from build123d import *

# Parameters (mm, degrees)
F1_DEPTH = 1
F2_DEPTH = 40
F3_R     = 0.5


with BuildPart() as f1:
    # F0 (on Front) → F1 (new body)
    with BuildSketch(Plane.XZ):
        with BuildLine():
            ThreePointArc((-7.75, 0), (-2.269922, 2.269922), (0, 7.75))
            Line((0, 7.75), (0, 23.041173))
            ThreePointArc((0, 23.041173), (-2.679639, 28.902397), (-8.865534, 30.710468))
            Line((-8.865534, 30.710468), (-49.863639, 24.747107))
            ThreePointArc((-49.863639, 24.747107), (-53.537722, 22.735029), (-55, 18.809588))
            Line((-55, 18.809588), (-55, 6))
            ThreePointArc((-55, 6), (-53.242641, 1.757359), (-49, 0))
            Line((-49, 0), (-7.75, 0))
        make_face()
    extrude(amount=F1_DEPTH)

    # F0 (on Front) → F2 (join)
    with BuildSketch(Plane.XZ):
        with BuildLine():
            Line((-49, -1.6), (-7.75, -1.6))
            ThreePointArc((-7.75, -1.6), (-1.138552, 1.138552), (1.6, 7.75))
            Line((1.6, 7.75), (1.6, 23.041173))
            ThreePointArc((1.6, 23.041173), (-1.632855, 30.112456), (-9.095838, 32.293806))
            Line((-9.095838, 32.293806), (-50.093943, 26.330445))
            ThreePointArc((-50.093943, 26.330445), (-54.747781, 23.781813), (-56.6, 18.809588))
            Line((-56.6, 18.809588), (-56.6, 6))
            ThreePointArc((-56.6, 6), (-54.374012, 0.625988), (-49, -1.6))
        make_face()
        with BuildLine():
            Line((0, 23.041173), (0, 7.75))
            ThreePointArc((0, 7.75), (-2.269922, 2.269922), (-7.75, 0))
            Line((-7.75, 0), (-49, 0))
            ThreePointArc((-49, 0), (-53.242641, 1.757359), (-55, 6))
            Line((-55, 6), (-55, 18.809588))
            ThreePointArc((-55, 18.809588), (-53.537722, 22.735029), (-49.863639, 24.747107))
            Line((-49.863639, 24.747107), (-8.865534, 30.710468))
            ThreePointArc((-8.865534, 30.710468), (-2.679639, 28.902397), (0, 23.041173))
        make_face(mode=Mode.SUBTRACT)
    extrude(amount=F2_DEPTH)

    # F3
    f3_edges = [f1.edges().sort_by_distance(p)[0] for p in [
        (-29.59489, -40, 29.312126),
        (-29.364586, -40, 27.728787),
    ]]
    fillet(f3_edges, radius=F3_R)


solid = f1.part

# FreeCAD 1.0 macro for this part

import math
import FreeCAD as App
import Part
import Sketcher
from FreeCAD import Vector


def edges_at(feature, points):
    """Names of the edges that pass closest to the given points."""
    edges = feature.Shape.Edges
    near = lambda p: min(range(len(edges)), key=lambda i: edges[i].distToShape(Part.Vertex(*p))[0])
    return sorted({f"Edge{near(p) + 1}" for p in points})

doc = App.newDocument("Part")
body = doc.addObject("PartDesign::Body", "Body")

# Sketch on XZ plane
sketch1 = body.newObject("Sketcher::SketchObject", "Sketch")
sketch1.AttachmentSupport = (doc.getObject("XZ_Plane"), [""])
sketch1.MapMode = "FlatFace"
sketch1.addGeometry([
    Part.ArcOfCircle(Part.Circle(Vector(-8, 8, 0), Vector(0, 0, 1), 8), math.radians(-90), math.radians(0)),  # 0
    Part.LineSegment(Vector(0, 8, 0), Vector(0, 23, 0)),  # 1
    Part.ArcOfCircle(Part.Circle(Vector(-8, 23, 0), Vector(0, 0, 1), 8), math.radians(0), math.radians(98)),  # 2
    Part.LineSegment(Vector(-9, 31, 0), Vector(-50, 25, 0)),  # 3
    Part.ArcOfCircle(Part.Circle(Vector(-49, 19, 0), Vector(0, 0, 1), 6), math.radians(98), math.radians(180)),  # 4
    Part.LineSegment(Vector(-55, 19, 0), Vector(-55, 6, 0)),  # 5
    Part.ArcOfCircle(Part.Circle(Vector(-49, 6, 0), Vector(0, 0, 1), 6), math.radians(180), math.radians(270)),  # 6
    Part.LineSegment(Vector(-49, 0, 0), Vector(-8, 0, 0)),  # 7
], False)
sketch1.addConstraint([
    Sketcher.Constraint("Tangent", 0, 2, 1, 1),
    Sketcher.Constraint("Tangent", 1, 2, 2, 1),
    Sketcher.Constraint("Tangent", 2, 2, 3, 1),
    Sketcher.Constraint("Tangent", 3, 2, 4, 1),
    Sketcher.Constraint("Tangent", 4, 2, 5, 1),
    Sketcher.Constraint("Tangent", 5, 2, 6, 1),
    Sketcher.Constraint("Tangent", 6, 2, 7, 1),
    Sketcher.Constraint("Tangent", 7, 2, 0, 1),
    Sketcher.Constraint("Vertical", 1),
    Sketcher.Constraint("Vertical", 5),
    Sketcher.Constraint("Horizontal", 7),
    Sketcher.Constraint("Equal", 0, 2),
    Sketcher.Constraint("Equal", 4, 6),
    Sketcher.Constraint("PointOnObject", 0, 2, -2),
    Sketcher.Constraint("PointOnObject", 6, 2, -1),
    Sketcher.Constraint("Radius", 4, 5.999999),
    Sketcher.Constraint("Radius", 0, 7.749998),
    Sketcher.Constraint("DistanceX", 4, 3, -1, 1, 49.000001),
    Sketcher.Constraint("DistanceY", 5, 2, 5, 1, 12.809588),
    Sketcher.Constraint("DistanceY", 1, 1, 1, 2, 15.291173),
])
pad1 = body.newObject("PartDesign::Pad", "Pad")
pad1.Profile = sketch1
pad1.Length = 1

# Sketch on XZ plane
sketch2 = body.newObject("Sketcher::SketchObject", "Sketch001")
sketch2.AttachmentSupport = (doc.getObject("XZ_Plane"), [""])
sketch2.MapMode = "FlatFace"
sketch2.addGeometry([
    Part.LineSegment(Vector(-49, -2, 0), Vector(-8, -2, 0)),  # 0
    Part.ArcOfCircle(Part.Circle(Vector(-8, 8, 0), Vector(0, 0, 1), 9), math.radians(-90), math.radians(0)),  # 1
    Part.LineSegment(Vector(2, 8, 0), Vector(2, 23, 0)),  # 2
    Part.ArcOfCircle(Part.Circle(Vector(-8, 23, 0), Vector(0, 0, 1), 9), math.radians(0), math.radians(98)),  # 3
    Part.LineSegment(Vector(-9, 32, 0), Vector(-50, 26, 0)),  # 4
    Part.ArcOfCircle(Part.Circle(Vector(-49, 19, 0), Vector(0, 0, 1), 8), math.radians(98), math.radians(180)),  # 5
    Part.LineSegment(Vector(-57, 19, 0), Vector(-57, 6, 0)),  # 6
    Part.ArcOfCircle(Part.Circle(Vector(-49, 6, 0), Vector(0, 0, 1), 8), math.radians(180), math.radians(270)),  # 7
    Part.ArcOfCircle(Part.Circle(Vector(-8, 23, 0), Vector(0, 0, 1), 8), math.radians(0), math.radians(98)),  # 8
    Part.LineSegment(Vector(0, 23, 0), Vector(0, 8, 0)),  # 9
    Part.ArcOfCircle(Part.Circle(Vector(-8, 8, 0), Vector(0, 0, 1), 8), math.radians(-90), math.radians(0)),  # 10
    Part.LineSegment(Vector(-8, 0, 0), Vector(-49, 0, 0)),  # 11
    Part.ArcOfCircle(Part.Circle(Vector(-49, 6, 0), Vector(0, 0, 1), 6), math.radians(180), math.radians(270)),  # 12
    Part.LineSegment(Vector(-55, 6, 0), Vector(-55, 19, 0)),  # 13
    Part.ArcOfCircle(Part.Circle(Vector(-49, 19, 0), Vector(0, 0, 1), 6), math.radians(98), math.radians(180)),  # 14
    Part.LineSegment(Vector(-50, 25, 0), Vector(-9, 31, 0)),  # 15
], False)
sketch2.addConstraint([
    Sketcher.Constraint("Tangent", 0, 2, 1, 1),
    Sketcher.Constraint("Tangent", 1, 2, 2, 1),
    Sketcher.Constraint("Tangent", 2, 2, 3, 1),
    Sketcher.Constraint("Tangent", 3, 2, 4, 1),
    Sketcher.Constraint("Tangent", 4, 2, 5, 1),
    Sketcher.Constraint("Tangent", 5, 2, 6, 1),
    Sketcher.Constraint("Tangent", 6, 2, 7, 1),
    Sketcher.Constraint("Tangent", 7, 2, 0, 1),
    Sketcher.Constraint("Tangent", 8, 1, 9, 1),
    Sketcher.Constraint("Tangent", 9, 2, 10, 2),
    Sketcher.Constraint("Tangent", 10, 1, 11, 1),
    Sketcher.Constraint("Tangent", 11, 2, 12, 2),
    Sketcher.Constraint("Tangent", 12, 1, 13, 1),
    Sketcher.Constraint("Tangent", 13, 2, 14, 2),
    Sketcher.Constraint("Tangent", 14, 1, 15, 1),
    Sketcher.Constraint("Tangent", 15, 2, 8, 2),
    Sketcher.Constraint("Horizontal", 0),
    Sketcher.Constraint("Vertical", 2),
    Sketcher.Constraint("Vertical", 6),
    Sketcher.Constraint("Vertical", 9),
    Sketcher.Constraint("Horizontal", 11),
    Sketcher.Constraint("Vertical", 13),
    Sketcher.Constraint("Coincident", 8, 3, 3, 3),
    Sketcher.Constraint("Coincident", 10, 3, 1, 3),
    Sketcher.Constraint("Coincident", 12, 3, 7, 3),
    Sketcher.Constraint("Coincident", 14, 3, 5, 3),
    Sketcher.Constraint("Equal", 5, 7),
    Sketcher.Constraint("Equal", 8, 10),
    Sketcher.Constraint("PointOnObject", 8, 1, -2),
    Sketcher.Constraint("PointOnObject", 10, 1, -1),
    Sketcher.Constraint("Radius", 12, 5.999999),
    Sketcher.Constraint("Radius", 5, 7.599999),
    Sketcher.Constraint("Radius", 1, 9.350001),
    Sketcher.Constraint("DistanceX", 5, 3, -1, 1, 49.000001),
    Sketcher.Constraint("DistanceY", 6, 2, 6, 1, 12.809588),
    Sketcher.Constraint("DistanceY", 2, 1, 2, 2, 15.291173),
])
pad2 = body.newObject("PartDesign::Pad", "Pad001")
pad2.Profile = sketch2
pad2.Length = 40
doc.recompute()

fillet = body.newObject("PartDesign::Fillet", "Fillet")
fillet.Base = (pad2, edges_at(pad2, [(-29.595, -40, 29.312), (-29.365, -40, 27.729)]))
fillet.Radius = 0.5

doc.recompute()
